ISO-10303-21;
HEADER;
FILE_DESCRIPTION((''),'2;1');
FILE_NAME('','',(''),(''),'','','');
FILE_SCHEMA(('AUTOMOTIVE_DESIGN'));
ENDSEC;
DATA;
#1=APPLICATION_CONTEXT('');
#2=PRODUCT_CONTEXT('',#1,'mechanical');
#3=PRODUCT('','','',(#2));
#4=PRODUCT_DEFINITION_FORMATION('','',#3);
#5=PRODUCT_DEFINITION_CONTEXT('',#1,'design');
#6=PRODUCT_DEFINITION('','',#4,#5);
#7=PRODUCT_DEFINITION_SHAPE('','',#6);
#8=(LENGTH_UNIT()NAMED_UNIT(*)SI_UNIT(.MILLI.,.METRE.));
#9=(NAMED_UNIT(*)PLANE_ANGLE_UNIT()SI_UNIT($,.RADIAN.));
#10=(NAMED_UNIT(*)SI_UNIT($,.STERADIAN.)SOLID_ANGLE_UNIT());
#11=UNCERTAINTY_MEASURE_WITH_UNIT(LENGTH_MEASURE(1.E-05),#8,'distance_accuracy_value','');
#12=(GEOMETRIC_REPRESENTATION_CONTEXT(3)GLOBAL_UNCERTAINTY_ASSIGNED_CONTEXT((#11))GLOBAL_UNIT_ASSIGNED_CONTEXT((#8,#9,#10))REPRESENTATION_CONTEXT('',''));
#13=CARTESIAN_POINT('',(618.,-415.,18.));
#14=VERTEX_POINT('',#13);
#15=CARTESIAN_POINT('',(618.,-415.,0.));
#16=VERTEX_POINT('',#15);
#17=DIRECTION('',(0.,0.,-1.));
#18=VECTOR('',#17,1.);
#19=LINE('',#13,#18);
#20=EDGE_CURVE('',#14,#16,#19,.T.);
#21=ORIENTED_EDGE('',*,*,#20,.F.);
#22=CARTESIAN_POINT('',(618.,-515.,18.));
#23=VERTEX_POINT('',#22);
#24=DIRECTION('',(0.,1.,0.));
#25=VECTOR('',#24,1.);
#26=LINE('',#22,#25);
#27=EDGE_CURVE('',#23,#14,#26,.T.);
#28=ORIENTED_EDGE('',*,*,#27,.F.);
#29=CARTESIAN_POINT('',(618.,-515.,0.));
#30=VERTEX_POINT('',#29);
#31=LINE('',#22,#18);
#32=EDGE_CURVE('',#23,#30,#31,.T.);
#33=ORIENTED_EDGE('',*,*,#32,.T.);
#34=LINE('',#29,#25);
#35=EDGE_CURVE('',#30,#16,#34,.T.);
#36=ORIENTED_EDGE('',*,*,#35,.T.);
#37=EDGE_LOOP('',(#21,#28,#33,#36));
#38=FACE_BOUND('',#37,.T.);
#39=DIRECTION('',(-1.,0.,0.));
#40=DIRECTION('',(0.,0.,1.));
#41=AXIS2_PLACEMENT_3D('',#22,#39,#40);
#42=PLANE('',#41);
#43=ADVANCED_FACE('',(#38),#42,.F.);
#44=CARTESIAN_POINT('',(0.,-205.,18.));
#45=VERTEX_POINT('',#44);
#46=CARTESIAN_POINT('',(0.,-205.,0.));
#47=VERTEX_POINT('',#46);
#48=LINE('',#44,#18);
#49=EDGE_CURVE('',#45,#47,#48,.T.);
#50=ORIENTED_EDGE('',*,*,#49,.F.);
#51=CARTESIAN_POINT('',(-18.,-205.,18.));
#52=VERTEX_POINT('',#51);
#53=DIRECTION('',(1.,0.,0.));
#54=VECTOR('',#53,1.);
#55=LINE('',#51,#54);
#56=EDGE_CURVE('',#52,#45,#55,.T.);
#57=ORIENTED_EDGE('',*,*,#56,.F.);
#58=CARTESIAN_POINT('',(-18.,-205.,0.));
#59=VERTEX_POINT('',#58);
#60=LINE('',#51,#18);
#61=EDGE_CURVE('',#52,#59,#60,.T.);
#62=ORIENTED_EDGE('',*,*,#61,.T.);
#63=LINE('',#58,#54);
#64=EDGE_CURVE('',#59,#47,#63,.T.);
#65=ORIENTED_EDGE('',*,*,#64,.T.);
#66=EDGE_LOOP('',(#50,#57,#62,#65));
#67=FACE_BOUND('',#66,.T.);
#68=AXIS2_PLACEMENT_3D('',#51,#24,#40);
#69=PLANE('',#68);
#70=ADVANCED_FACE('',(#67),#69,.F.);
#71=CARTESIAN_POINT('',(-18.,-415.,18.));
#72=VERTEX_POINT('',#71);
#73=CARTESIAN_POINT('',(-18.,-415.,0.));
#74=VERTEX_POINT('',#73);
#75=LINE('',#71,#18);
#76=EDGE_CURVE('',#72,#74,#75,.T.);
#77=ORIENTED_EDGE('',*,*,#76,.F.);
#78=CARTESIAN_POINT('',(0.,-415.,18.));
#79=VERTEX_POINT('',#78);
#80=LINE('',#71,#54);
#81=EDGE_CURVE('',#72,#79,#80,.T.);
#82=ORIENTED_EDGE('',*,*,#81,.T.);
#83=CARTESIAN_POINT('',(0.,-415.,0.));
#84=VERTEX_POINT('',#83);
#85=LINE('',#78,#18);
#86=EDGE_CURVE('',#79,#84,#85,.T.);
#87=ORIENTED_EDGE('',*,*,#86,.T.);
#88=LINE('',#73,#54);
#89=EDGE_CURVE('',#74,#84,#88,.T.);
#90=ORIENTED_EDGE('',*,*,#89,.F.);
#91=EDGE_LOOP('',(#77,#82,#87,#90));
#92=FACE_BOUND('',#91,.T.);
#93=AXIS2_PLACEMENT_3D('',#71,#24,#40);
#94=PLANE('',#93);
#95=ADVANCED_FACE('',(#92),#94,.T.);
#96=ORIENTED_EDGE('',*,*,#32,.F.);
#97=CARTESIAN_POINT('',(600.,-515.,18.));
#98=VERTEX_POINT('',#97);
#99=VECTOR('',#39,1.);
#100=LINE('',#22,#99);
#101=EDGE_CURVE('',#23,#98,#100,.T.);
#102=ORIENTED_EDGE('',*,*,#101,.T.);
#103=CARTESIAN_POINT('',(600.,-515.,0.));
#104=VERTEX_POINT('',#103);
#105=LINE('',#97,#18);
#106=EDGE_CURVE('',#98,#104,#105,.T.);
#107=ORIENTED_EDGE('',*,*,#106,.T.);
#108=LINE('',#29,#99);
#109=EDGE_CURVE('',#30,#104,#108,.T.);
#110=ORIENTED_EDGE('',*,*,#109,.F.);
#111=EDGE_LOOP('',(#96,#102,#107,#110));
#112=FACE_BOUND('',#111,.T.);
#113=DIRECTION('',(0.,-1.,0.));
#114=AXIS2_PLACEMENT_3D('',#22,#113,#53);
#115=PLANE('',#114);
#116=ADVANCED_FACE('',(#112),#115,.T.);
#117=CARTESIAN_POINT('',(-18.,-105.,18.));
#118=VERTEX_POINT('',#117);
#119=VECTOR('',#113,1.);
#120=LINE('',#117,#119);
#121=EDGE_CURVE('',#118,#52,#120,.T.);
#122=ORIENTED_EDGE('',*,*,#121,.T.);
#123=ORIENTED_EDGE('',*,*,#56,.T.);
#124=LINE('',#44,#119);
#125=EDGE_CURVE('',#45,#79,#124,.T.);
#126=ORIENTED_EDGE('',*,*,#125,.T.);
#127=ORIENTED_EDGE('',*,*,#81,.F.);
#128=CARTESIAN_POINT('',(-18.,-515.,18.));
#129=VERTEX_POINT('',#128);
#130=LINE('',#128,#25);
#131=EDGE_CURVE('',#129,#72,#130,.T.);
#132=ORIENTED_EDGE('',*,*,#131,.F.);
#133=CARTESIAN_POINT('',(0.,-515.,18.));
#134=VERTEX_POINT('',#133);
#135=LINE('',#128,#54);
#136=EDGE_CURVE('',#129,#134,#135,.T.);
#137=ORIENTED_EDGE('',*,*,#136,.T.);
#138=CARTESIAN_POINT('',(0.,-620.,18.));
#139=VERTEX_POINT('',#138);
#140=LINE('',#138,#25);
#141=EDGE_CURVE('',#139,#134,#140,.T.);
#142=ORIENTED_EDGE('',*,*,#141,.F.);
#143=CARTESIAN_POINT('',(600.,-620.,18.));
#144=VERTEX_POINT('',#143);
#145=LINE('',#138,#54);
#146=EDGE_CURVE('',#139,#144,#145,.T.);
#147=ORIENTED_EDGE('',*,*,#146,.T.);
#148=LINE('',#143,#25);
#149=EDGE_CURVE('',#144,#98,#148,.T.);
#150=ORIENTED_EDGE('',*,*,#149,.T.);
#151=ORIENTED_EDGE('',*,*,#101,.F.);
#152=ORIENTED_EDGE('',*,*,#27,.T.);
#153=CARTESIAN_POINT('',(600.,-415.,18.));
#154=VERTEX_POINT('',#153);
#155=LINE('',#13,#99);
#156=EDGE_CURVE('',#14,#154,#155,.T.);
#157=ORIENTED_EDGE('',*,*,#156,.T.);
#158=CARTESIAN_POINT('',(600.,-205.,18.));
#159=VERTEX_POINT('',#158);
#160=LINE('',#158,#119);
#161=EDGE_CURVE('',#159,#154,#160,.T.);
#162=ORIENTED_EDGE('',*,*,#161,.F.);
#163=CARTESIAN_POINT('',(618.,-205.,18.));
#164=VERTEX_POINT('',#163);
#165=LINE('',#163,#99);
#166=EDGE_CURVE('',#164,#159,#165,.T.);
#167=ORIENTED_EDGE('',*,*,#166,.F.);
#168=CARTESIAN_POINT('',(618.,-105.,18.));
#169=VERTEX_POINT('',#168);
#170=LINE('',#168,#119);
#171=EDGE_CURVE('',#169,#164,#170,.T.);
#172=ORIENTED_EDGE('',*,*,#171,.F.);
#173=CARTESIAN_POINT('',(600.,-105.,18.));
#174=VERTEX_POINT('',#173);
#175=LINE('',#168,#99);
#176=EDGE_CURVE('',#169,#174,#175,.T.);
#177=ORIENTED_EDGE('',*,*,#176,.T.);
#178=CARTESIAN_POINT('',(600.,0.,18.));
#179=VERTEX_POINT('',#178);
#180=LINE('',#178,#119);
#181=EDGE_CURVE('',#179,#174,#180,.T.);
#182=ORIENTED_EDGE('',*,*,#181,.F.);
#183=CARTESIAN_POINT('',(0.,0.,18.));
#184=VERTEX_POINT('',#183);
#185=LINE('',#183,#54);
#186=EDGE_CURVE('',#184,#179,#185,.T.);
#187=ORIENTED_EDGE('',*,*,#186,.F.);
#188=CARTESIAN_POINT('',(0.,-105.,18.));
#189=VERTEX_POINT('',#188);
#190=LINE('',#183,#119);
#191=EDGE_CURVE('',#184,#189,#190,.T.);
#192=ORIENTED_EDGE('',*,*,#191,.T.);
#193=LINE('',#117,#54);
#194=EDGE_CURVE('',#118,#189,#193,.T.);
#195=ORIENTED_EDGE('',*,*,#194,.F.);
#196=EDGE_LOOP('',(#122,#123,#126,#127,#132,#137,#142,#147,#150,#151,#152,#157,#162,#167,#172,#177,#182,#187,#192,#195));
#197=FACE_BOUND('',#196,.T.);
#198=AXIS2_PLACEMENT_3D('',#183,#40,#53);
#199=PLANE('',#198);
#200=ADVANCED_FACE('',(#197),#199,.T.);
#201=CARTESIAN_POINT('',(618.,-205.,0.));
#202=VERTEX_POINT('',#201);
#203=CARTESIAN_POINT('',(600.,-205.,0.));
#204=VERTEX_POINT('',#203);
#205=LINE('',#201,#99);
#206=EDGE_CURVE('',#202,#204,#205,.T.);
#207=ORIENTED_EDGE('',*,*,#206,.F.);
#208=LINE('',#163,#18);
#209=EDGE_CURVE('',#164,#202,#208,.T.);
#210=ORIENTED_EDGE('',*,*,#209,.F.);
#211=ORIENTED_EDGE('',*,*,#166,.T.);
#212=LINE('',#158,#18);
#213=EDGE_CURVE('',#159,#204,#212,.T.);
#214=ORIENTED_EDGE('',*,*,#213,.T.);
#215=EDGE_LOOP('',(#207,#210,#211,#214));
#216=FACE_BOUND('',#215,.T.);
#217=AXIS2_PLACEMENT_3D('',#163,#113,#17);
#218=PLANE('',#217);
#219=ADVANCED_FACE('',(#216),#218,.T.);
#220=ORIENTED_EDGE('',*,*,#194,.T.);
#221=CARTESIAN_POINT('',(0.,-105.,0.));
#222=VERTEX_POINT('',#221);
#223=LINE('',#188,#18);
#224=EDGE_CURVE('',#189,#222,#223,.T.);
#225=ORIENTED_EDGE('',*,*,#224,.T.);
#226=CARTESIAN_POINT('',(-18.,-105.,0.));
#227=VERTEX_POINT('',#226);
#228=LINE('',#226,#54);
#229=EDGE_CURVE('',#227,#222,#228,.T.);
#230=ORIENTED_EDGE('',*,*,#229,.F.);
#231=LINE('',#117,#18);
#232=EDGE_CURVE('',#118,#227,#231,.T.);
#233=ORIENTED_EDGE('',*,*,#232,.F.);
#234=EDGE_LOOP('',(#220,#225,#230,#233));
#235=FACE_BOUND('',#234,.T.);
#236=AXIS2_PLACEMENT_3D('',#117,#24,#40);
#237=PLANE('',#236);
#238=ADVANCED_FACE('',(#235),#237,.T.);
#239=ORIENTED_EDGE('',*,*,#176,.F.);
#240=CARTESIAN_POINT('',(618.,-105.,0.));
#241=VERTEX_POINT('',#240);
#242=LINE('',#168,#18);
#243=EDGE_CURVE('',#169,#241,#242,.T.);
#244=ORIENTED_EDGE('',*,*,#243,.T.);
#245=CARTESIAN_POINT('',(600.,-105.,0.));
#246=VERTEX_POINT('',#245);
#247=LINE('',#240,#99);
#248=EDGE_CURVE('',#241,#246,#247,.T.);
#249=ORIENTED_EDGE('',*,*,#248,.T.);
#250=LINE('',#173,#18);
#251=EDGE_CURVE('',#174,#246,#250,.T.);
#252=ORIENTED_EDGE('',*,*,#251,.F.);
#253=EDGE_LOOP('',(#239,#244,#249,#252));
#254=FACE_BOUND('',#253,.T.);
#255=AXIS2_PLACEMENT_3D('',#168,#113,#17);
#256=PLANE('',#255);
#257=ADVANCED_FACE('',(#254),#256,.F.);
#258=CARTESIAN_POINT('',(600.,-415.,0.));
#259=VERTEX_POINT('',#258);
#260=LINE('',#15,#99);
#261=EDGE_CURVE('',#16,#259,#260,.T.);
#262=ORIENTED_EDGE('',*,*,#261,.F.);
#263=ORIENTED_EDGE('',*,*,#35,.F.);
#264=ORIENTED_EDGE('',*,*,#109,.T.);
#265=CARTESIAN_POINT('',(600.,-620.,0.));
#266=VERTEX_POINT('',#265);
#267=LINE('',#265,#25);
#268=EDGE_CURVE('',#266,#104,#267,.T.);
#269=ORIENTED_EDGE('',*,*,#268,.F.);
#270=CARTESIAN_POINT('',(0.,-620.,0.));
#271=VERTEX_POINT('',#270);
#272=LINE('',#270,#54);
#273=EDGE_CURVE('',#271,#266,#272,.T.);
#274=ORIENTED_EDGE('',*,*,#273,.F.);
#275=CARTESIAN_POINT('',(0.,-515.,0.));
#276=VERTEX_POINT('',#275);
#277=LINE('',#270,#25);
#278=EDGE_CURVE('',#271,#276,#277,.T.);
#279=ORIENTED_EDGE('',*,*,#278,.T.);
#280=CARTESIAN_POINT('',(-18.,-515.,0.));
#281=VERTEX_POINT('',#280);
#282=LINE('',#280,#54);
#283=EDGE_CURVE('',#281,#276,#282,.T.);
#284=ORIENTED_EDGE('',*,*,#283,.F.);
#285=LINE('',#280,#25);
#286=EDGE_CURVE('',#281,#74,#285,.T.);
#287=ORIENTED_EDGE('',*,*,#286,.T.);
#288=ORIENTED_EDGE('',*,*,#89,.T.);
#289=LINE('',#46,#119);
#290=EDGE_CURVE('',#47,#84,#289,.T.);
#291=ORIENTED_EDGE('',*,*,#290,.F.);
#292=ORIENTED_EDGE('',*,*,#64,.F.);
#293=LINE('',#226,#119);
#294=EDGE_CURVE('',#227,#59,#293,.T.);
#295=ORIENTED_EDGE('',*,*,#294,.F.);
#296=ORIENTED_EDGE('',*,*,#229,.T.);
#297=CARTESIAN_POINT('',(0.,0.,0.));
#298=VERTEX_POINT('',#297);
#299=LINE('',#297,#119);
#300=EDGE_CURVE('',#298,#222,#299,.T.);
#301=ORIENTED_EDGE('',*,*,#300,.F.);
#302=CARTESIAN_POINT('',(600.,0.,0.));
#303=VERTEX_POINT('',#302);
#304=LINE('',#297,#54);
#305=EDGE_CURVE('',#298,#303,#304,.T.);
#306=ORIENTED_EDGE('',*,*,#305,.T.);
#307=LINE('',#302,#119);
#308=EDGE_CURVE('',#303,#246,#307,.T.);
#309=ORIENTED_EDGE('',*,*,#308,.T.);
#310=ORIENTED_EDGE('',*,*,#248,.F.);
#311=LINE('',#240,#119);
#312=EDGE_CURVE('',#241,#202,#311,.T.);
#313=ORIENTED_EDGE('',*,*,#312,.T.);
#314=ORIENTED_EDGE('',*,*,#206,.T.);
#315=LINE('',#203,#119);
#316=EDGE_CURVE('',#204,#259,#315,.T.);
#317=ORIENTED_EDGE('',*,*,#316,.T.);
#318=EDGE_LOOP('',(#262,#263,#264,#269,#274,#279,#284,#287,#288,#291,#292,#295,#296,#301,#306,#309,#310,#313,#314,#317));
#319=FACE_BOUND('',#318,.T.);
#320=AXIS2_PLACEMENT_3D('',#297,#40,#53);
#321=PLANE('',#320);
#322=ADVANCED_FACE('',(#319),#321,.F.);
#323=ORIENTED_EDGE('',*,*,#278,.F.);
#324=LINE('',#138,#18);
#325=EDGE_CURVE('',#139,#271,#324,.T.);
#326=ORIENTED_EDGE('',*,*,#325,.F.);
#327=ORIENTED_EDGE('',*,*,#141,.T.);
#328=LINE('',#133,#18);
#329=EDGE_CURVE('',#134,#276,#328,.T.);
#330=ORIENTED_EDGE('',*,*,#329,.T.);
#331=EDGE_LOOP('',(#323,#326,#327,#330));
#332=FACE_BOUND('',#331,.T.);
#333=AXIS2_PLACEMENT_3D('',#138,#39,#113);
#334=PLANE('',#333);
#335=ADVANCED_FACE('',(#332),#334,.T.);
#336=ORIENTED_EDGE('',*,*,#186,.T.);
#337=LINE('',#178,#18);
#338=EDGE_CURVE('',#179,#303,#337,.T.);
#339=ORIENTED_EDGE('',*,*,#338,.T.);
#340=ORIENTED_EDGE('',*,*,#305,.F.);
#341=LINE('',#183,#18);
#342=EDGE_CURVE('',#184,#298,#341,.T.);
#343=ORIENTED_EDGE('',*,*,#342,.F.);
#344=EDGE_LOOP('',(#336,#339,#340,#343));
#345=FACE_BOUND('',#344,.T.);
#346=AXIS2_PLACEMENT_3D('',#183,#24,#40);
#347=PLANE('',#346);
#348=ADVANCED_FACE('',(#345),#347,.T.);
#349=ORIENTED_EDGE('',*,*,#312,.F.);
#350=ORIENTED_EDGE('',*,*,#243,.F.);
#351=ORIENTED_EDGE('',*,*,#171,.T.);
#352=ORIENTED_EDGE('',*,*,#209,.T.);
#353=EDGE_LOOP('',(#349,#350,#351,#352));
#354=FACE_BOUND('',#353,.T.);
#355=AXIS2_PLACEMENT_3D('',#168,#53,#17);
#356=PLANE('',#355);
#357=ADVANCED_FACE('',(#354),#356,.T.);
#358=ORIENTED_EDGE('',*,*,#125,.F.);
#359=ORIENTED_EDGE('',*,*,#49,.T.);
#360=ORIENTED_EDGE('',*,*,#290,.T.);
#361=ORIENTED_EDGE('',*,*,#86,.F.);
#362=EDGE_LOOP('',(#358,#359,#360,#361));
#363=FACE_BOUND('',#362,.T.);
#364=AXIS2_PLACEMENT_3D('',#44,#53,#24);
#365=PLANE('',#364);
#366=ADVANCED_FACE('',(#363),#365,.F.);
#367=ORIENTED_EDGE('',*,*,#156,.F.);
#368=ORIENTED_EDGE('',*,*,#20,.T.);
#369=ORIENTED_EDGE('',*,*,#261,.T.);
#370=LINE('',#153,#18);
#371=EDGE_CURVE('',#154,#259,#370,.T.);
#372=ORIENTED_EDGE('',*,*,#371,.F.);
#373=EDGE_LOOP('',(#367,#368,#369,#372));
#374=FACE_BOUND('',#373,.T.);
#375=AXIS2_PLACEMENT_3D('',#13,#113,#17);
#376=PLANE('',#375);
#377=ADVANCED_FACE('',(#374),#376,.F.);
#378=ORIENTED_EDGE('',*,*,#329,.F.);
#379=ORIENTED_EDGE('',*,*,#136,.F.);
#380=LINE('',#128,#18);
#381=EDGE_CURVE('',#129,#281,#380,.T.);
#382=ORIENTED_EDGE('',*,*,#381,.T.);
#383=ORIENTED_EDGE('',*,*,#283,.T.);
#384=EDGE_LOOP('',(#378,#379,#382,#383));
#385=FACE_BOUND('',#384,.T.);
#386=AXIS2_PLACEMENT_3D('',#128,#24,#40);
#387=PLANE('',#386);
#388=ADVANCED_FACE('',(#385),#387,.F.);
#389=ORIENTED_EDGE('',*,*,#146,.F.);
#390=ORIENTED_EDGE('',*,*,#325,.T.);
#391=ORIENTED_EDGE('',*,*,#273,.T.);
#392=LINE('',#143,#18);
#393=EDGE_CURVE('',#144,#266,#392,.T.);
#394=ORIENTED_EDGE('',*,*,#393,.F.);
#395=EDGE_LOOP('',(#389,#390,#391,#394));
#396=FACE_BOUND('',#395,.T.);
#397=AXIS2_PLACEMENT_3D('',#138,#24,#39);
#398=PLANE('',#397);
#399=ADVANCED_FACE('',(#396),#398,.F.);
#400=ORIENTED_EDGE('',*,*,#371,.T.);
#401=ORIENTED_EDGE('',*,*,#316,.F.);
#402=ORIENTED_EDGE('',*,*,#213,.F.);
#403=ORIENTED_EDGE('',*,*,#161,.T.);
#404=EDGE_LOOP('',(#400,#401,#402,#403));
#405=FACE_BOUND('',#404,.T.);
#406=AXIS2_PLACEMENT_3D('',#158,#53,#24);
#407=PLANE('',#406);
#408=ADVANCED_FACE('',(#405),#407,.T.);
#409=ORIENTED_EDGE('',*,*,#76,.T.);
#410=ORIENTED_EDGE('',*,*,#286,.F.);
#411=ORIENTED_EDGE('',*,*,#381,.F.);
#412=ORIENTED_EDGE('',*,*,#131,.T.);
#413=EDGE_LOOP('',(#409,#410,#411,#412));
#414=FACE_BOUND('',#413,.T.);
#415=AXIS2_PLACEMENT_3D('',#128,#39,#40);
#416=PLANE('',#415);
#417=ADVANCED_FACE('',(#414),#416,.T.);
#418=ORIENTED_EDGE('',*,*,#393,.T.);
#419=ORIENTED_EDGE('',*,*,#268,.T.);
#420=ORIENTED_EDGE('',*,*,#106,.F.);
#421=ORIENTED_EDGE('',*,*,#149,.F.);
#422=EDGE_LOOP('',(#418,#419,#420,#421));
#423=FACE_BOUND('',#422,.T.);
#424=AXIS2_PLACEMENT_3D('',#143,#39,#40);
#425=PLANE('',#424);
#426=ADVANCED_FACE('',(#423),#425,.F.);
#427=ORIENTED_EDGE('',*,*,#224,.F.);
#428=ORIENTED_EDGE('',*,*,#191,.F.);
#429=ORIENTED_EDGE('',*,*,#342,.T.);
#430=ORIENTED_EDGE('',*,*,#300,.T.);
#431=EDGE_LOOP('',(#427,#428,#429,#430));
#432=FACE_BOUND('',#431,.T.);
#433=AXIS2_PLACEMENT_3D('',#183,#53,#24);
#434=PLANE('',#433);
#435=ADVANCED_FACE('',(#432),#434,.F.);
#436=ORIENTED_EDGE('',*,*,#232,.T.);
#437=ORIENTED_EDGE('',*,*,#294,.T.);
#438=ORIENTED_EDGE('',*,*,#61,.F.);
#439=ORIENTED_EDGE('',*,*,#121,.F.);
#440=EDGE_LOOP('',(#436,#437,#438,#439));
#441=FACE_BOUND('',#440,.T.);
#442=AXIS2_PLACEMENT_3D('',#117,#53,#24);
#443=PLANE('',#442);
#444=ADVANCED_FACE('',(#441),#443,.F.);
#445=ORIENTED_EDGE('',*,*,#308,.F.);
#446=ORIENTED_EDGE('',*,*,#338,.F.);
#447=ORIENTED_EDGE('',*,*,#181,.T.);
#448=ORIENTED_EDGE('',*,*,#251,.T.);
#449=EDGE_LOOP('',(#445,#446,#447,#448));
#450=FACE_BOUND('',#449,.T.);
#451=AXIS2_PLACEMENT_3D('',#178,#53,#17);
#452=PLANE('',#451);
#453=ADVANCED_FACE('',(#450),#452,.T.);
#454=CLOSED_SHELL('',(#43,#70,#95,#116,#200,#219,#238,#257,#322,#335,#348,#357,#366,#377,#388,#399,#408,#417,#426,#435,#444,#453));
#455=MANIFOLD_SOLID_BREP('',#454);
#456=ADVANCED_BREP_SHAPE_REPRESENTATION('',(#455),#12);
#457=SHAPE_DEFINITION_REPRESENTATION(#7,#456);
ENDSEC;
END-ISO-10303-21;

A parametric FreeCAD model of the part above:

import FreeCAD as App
import Part
import Sketcher

V = App.Vector
Q = App.Units.Quantity

doc = App.newDocument("Part")
body = doc.addObject("PartDesign::Body", "Body")

sketch1 = doc.addObject("Sketcher::SketchObject", "Sketch")
body.addObject(sketch1)
sketch1.AttachmentSupport = (doc.XY_Plane, [""])
sketch1.MapMode = "FlatFace"
sketch1.addGeometry(Part.LineSegment(V(0, 0, 0), V(0, -105, 0)), False)
sketch1.addGeometry(Part.LineSegment(V(0, -105, 0), V(-18, -105, 0)), False)
sketch1.addGeometry(Part.LineSegment(V(-18, -105, 0), V(-18, -205, 0)), False)
sketch1.addGeometry(Part.LineSegment(V(-18, -205, 0), V(0, -205, 0)), False)
sketch1.addGeometry(Part.LineSegment(V(0, -205, 0), V(0, -415, 0)), False)
sketch1.addGeometry(Part.LineSegment(V(0, -415, 0), V(-18, -415, 0)), False)
sketch1.addGeometry(Part.LineSegment(V(-18, -415, 0), V(-18, -515, 0)), False)
sketch1.addGeometry(Part.LineSegment(V(-18, -515, 0), V(0, -515, 0)), False)
sketch1.addGeometry(Part.LineSegment(V(0, -515, 0), V(0, -620, 0)), False)
sketch1.addGeometry(Part.LineSegment(V(0, -620, 0), V(600, -620, 0)), False)
sketch1.addGeometry(Part.LineSegment(V(600, -620, 0), V(600, -515, 0)), False)
sketch1.addGeometry(Part.LineSegment(V(600, -515, 0), V(618, -515, 0)), False)
sketch1.addGeometry(Part.LineSegment(V(618, -515, 0), V(618, -415, 0)), False)
sketch1.addGeometry(Part.LineSegment(V(618, -415, 0), V(600, -415, 0)), False)
sketch1.addGeometry(Part.LineSegment(V(600, -415, 0), V(600, -205, 0)), False)
sketch1.addGeometry(Part.LineSegment(V(600, -205, 0), V(618, -205, 0)), False)
sketch1.addGeometry(Part.LineSegment(V(618, -205, 0), V(618, -105, 0)), False)
sketch1.addGeometry(Part.LineSegment(V(618, -105, 0), V(600, -105, 0)), False)
sketch1.addGeometry(Part.LineSegment(V(600, -105, 0), V(600, 0, 0)), False)
sketch1.addGeometry(Part.LineSegment(V(600, 0, 0), V(0, 0, 0)), False)
sketch1.addConstraint(Sketcher.Constraint("Coincident", 0, 2, 1, 1))
sketch1.addConstraint(Sketcher.Constraint("Coincident", 1, 2, 2, 1))
sketch1.addConstraint(Sketcher.Constraint("Coincident", 2, 2, 3, 1))
sketch1.addConstraint(Sketcher.Constraint("Coincident", 3, 2, 4, 1))
sketch1.addConstraint(Sketcher.Constraint("Coincident", 4, 2, 5, 1))
sketch1.addConstraint(Sketcher.Constraint("Coincident", 5, 2, 6, 1))
sketch1.addConstraint(Sketcher.Constraint("Coincident", 6, 2, 7, 1))
sketch1.addConstraint(Sketcher.Constraint("Coincident", 7, 2, 8, 1))
sketch1.addConstraint(Sketcher.Constraint("Coincident", 8, 2, 9, 1))
sketch1.addConstraint(Sketcher.Constraint("Coincident", 9, 2, 10, 1))
sketch1.addConstraint(Sketcher.Constraint("Coincident", 10, 2, 11, 1))
sketch1.addConstraint(Sketcher.Constraint("Coincident", 11, 2, 12, 1))
sketch1.addConstraint(Sketcher.Constraint("Coincident", 12, 2, 13, 1))
sketch1.addConstraint(Sketcher.Constraint("Coincident", 13, 2, 14, 1))
sketch1.addConstraint(Sketcher.Constraint("Coincident", 14, 2, 15, 1))
sketch1.addConstraint(Sketcher.Constraint("Coincident", 15, 2, 16, 1))
sketch1.addConstraint(Sketcher.Constraint("Coincident", 16, 2, 17, 1))
sketch1.addConstraint(Sketcher.Constraint("Coincident", 17, 2, 18, 1))
sketch1.addConstraint(Sketcher.Constraint("Coincident", 18, 2, 19, 1))
sketch1.addConstraint(Sketcher.Constraint("Coincident", 19, 2, 0, 1))
sketch1.addConstraint(Sketcher.Constraint("Vertical", 0))
sketch1.addConstraint(Sketcher.Constraint("Horizontal", 1))
sketch1.addConstraint(Sketcher.Constraint("Vertical", 2))
sketch1.addConstraint(Sketcher.Constraint("Horizontal", 3))
sketch1.addConstraint(Sketcher.Constraint("Vertical", 4))
sketch1.addConstraint(Sketcher.Constraint("Horizontal", 5))
sketch1.addConstraint(Sketcher.Constraint("Vertical", 6))
sketch1.addConstraint(Sketcher.Constraint("Horizontal", 7))
sketch1.addConstraint(Sketcher.Constraint("Vertical", 8))
sketch1.addConstraint(Sketcher.Constraint("Horizontal", 9))
sketch1.addConstraint(Sketcher.Constraint("Vertical", 10))
sketch1.addConstraint(Sketcher.Constraint("Horizontal", 11))
sketch1.addConstraint(Sketcher.Constraint("Vertical", 12))
sketch1.addConstraint(Sketcher.Constraint("Horizontal", 13))
sketch1.addConstraint(Sketcher.Constraint("Vertical", 14))
sketch1.addConstraint(Sketcher.Constraint("Horizontal", 15))
sketch1.addConstraint(Sketcher.Constraint("Vertical", 16))
sketch1.addConstraint(Sketcher.Constraint("Horizontal", 17))
sketch1.addConstraint(Sketcher.Constraint("Vertical", 18))
sketch1.addConstraint(Sketcher.Constraint("Horizontal", 19))
sketch1.addConstraint(Sketcher.Constraint("Coincident", 19, 2, -1, 1))
sketch1.addConstraint(Sketcher.Constraint("PointOnObject", 3, 2, -2))
sketch1.addConstraint(Sketcher.Constraint("PointOnObject", 7, 2, -2))
sketch1.addConstraint(Sketcher.Constraint("Horizontal", 7, 2, 10, 2))
sketch1.addConstraint(Sketcher.Constraint("Horizontal", 5, 2, 12, 2))
sketch1.addConstraint(Sketcher.Constraint("Horizontal", 3, 2, 14, 2))
sketch1.addConstraint(Sketcher.Constraint("Horizontal", 1, 2, 16, 2))
sketch1.addConstraint(Sketcher.Constraint("Vertical", 2, 2, 5, 2))
sketch1.addConstraint(Sketcher.Constraint("Vertical", 10, 2, 13, 2))
sketch1.addConstraint(Sketcher.Constraint("Vertical", 12, 2, 15, 2))
sketch1.addConstraint(Sketcher.Constraint("Vertical", 14, 2, 17, 2))
sketch1.addConstraint(Sketcher.Constraint("Equal", 7, 11))
sketch1.addConstraint(Sketcher.Constraint("Equal", 2, 6))
sketch1.addConstraint(Sketcher.Constraint("Equal", 0, 8))
sketch1.addConstraint(Sketcher.Constraint("DistanceX", 1, 2, 1, 1, Q("18 mm")))
sketch1.addConstraint(Sketcher.Constraint("DistanceX", 9, 1, 9, 2, Q("600 mm")))
sketch1.addConstraint(Sketcher.Constraint("DistanceY", 0, 2, 0, 1, Q("105 mm")))
sketch1.addConstraint(Sketcher.Constraint("DistanceY", 2, 2, 2, 1, Q("100 mm")))
sketch1.addConstraint(Sketcher.Constraint("DistanceY", 4, 2, 4, 1, Q("210 mm")))
pad1 = doc.addObject("PartDesign::Pad", "Pad")
body.addObject(pad1)
pad1.Profile = sketch1
pad1.Length = 18

doc.recompute()
